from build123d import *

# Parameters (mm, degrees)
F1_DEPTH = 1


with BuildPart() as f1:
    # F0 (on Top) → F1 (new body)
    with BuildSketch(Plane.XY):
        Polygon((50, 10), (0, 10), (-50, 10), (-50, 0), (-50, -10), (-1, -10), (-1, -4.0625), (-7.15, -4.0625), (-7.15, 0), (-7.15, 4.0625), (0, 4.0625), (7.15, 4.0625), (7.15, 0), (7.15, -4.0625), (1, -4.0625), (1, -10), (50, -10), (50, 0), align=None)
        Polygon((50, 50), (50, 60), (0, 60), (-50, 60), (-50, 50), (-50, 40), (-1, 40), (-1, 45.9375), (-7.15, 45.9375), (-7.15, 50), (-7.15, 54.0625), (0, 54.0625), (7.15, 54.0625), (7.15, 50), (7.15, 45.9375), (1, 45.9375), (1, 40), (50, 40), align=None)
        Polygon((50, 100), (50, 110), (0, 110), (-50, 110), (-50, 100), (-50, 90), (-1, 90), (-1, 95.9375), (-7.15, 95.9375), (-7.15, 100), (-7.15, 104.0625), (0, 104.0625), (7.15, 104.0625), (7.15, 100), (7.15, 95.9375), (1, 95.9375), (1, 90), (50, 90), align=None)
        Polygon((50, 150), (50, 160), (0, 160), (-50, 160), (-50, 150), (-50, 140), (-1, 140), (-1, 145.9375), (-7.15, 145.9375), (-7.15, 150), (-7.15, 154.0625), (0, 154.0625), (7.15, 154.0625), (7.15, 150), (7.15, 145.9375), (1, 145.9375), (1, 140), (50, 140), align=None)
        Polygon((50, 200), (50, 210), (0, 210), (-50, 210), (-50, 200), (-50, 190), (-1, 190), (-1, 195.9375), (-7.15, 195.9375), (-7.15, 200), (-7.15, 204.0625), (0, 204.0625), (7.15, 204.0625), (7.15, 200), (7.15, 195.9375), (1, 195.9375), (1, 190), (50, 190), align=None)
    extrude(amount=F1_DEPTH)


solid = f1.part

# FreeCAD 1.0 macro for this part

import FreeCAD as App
import Part
import Sketcher

V = App.Vector


def add_polygon(sketch, points):
    """Adds a closed chain of lines whose ends are joined by coincident constraints."""
    first, n = sketch.GeometryCount, len(points)
    for a, b in zip(points, points[1:] + points[:1]):
        sketch.addGeometry(Part.LineSegment(App.Vector(*a, 0), App.Vector(*b, 0)), False)
    for i in range(n):
        sketch.addConstraint(Sketcher.Constraint("Coincident", first + i, 2, first + (i + 1) % n, 1))

doc = App.newDocument("Part")
params = doc.addObject("Spreadsheet::Sheet", "Params")
for row, (alias, value) in enumerate([
    ("sketch1_width", "100 mm"),
    ("sketch1_width2", "49 mm"),
    ("sketch1_height", "20 mm"),
    ("sketch1_width3", "14.3 mm"),
    ("pad1_length", "1 mm"),
], start=1):
    params.set(f"A{row}", alias)
    params.set(f"B{row}", "=" + value)
    params.setAlias(f"B{row}", alias)

body = doc.addObject("PartDesign::Body", "Body")
body.AllowCompound = True

# Sketch on XY plane
sketch1 = doc.addObject("Sketcher::SketchObject", "Sketch")
body.addObject(sketch1)
sketch1.AttachmentSupport = (doc.XY_Plane, [""])
sketch1.MapMode = "FlatFace"
add_polygon(sketch1, [(50, 10), (-50, 10), (-50, -10), (-1, -10), (-1, -4), (-7, -4), (-7, 4), (7, 4), (7, -4), (1, -4), (1, -10), (50, -10)])  # lines 0-11
add_polygon(sketch1, [(50, 60), (-50, 60), (-50, 40), (-1, 40), (-1, 46), (-7, 46), (-7, 54), (7, 54), (7, 46), (1, 46), (1, 40), (50, 40)])  # lines 12-23
add_polygon(sketch1, [(50, 110), (-50, 110), (-50, 90), (-1, 90), (-1, 96), (-7, 96), (-7, 104), (7, 104), (7, 96), (1, 96), (1, 90), (50, 90)])  # lines 24-35
add_polygon(sketch1, [(50, 160), (-50, 160), (-50, 140), (-1, 140), (-1, 146), (-7, 146), (-7, 154), (7, 154), (7, 146), (1, 146), (1, 140), (50, 140)])  # lines 36-47
add_polygon(sketch1, [(50, 210), (-50, 210), (-50, 190), (-1, 190), (-1, 196), (-7, 196), (-7, 204), (7, 204), (7, 196), (1, 196), (1, 190), (50, 190)])  # lines 48-59
sketch1.addConstraint([
    Sketcher.Constraint("Horizontal", 0),
    Sketcher.Constraint("Vertical", 1),
    Sketcher.Constraint("Horizontal", 2),
    Sketcher.Constraint("Vertical", 3),
    Sketcher.Constraint("Horizontal", 4),
    Sketcher.Constraint("Vertical", 5),
    Sketcher.Constraint("Horizontal", 6),
    Sketcher.Constraint("Vertical", 7),
    Sketcher.Constraint("Horizontal", 8),
    Sketcher.Constraint("Vertical", 9),
    Sketcher.Constraint("Horizontal", 10),
    Sketcher.Constraint("Vertical", 11),
    Sketcher.Constraint("Horizontal", 12),
    Sketcher.Constraint("Vertical", 13),
    Sketcher.Constraint("Horizontal", 14),
    Sketcher.Constraint("Vertical", 15),
    Sketcher.Constraint("Horizontal", 16),
    Sketcher.Constraint("Vertical", 17),
    Sketcher.Constraint("Horizontal", 18),
    Sketcher.Constraint("Vertical", 19),
    Sketcher.Constraint("Horizontal", 20),
    Sketcher.Constraint("Vertical", 21),
    Sketcher.Constraint("Horizontal", 22),
    Sketcher.Constraint("Vertical", 23),
    Sketcher.Constraint("Horizontal", 24),
    Sketcher.Constraint("Vertical", 25),
    Sketcher.Constraint("Horizontal", 26),
    Sketcher.Constraint("Vertical", 27),
    Sketcher.Constraint("Horizontal", 28),
    Sketcher.Constraint("Vertical", 29),
    Sketcher.Constraint("Horizontal", 30),
    Sketcher.Constraint("Vertical", 31),
    Sketcher.Constraint("Horizontal", 32),
    Sketcher.Constraint("Vertical", 33),
    Sketcher.Constraint("Horizontal", 34),
    Sketcher.Constraint("Vertical", 35),
    Sketcher.Constraint("Horizontal", 36),
    Sketcher.Constraint("Vertical", 37),
    Sketcher.Constraint("Horizontal", 38),
    Sketcher.Constraint("Vertical", 39),
    Sketcher.Constraint("Horizontal", 40),
    Sketcher.Constraint("Vertical", 41),
    Sketcher.Constraint("Horizontal", 42),
    Sketcher.Constraint("Vertical", 43),
    Sketcher.Constraint("Horizontal", 44),
    Sketcher.Constraint("Vertical", 45),
    Sketcher.Constraint("Horizontal", 46),
    Sketcher.Constraint("Vertical", 47),
    Sketcher.Constraint("Horizontal", 48),
    Sketcher.Constraint("Vertical", 49),
    Sketcher.Constraint("Horizontal", 50),
    Sketcher.Constraint("Vertical", 51),
    Sketcher.Constraint("Horizontal", 52),
    Sketcher.Constraint("Vertical", 53),
    Sketcher.Constraint("Horizontal", 54),
    Sketcher.Constraint("Vertical", 55),
    Sketcher.Constraint("Horizontal", 56),
    Sketcher.Constraint("Vertical", 57),
    Sketcher.Constraint("Horizontal", 58),
    Sketcher.Constraint("Vertical", 59),
    Sketcher.Constraint("Symmetric", 4, 2, 6, 2, -1, 1),
    Sketcher.Constraint("Symmetric", 0, 2, 10, 2, -1, 1),
    Sketcher.Constraint("Symmetric", 3, 2, 8, 2, -2),
    Sketcher.Constraint("Symmetric", 16, 2, 19, 2, -2),
    Sketcher.Constraint("Symmetric", 14, 2, 21, 2, -2),
    Sketcher.Constraint("Symmetric", 28, 2, 31, 2, -2),
    Sketcher.Constraint("Symmetric", 26, 2, 33, 2, -2),
    Sketcher.Constraint("Symmetric", 40, 2, 43, 2, -2),
    Sketcher.Constraint("Symmetric", 38, 2, 45, 2, -2),
    Sketcher.Constraint("Symmetric", 52, 2, 55, 2, -2),
    Sketcher.Constraint("Symmetric", 50, 2, 57, 2, -2),
    Sketcher.Constraint("Horizontal", 2, 2, 9, 2),
    Sketcher.Constraint("Vertical", 1, 2, 12, 2),
    Sketcher.Constraint("Vertical", 3, 2, 14, 2),
    Sketcher.Constraint("Vertical", 5, 2, 16, 2),
    Sketcher.Constraint("Vertical", 11, 2, 22, 2),
    Sketcher.Constraint("Vertical", 13, 2, 24, 2),
    Sketcher.Constraint("Vertical", 15, 2, 26, 2),
    Sketcher.Constraint("Vertical", 17, 2, 28, 2),
    Sketcher.Constraint("Vertical", 23, 2, 34, 2),
    Sketcher.Constraint("Vertical", 25, 2, 36, 2),
    Sketcher.Constraint("Vertical", 27, 2, 38, 2),
    Sketcher.Constraint("Vertical", 29, 2, 40, 2),
    Sketcher.Constraint("Vertical", 35, 2, 46, 2),
    Sketcher.Constraint("Vertical", 37, 2, 48, 2),
    Sketcher.Constraint("Vertical", 39, 2, 50, 2),
    Sketcher.Constraint("Vertical", 41, 2, 52, 2),
    Sketcher.Constraint("Vertical", 47, 2, 58, 2),
    Sketcher.Constraint("Equal", 11, 13),
    Sketcher.Constraint("Equal", 9, 15),
    Sketcher.Constraint("Equal", 7, 17),
    Sketcher.Constraint("Equal", 23, 25),
    Sketcher.Constraint("Equal", 21, 27),
    Sketcher.Constraint("Equal", 19, 29),
    Sketcher.Constraint("Equal", 35, 37),
    Sketcher.Constraint("Equal", 33, 39),
    Sketcher.Constraint("Equal", 31, 41),
    Sketcher.Constraint("Equal", 47, 49),
    Sketcher.Constraint("Equal", 45, 51),
    Sketcher.Constraint("Equal", 43, 53),
    Sketcher.Constraint("DistanceX", 0, 2, 0, 1, 100.0),
    Sketcher.Constraint("DistanceX", 2, 1, 2, 2, 49.0),
    Sketcher.Constraint("DistanceY", 1, 2, 1, 1, 20.0),
    Sketcher.Constraint("DistanceX", 6, 1, 6, 2, 14.3),
    Sketcher.Constraint("DistanceY", -1, 1, 12, 2, 60.0),
    Sketcher.Constraint("DistanceY", -1, 1, 24, 2, 110.0),
    Sketcher.Constraint("DistanceY", -1, 1, 36, 2, 160.0),
    Sketcher.Constraint("DistanceY", -1, 1, 48, 2, 210.0),
    Sketcher.Constraint("DistanceY", 5, 1, 5, 2, 8.125),
])
sketch1.setExpression("Constraints[160]", "Params.sketch1_width")
sketch1.setExpression("Constraints[161]", "Params.sketch1_width2")
sketch1.setExpression("Constraints[162]", "Params.sketch1_height")
sketch1.setExpression("Constraints[163]", "Params.sketch1_width3")
pad1 = doc.addObject("PartDesign::Pad", "Pad")
body.addObject(pad1)
pad1.Profile = sketch1
pad1.setExpression("Length", "Params.pad1_length")

doc.recompute()
